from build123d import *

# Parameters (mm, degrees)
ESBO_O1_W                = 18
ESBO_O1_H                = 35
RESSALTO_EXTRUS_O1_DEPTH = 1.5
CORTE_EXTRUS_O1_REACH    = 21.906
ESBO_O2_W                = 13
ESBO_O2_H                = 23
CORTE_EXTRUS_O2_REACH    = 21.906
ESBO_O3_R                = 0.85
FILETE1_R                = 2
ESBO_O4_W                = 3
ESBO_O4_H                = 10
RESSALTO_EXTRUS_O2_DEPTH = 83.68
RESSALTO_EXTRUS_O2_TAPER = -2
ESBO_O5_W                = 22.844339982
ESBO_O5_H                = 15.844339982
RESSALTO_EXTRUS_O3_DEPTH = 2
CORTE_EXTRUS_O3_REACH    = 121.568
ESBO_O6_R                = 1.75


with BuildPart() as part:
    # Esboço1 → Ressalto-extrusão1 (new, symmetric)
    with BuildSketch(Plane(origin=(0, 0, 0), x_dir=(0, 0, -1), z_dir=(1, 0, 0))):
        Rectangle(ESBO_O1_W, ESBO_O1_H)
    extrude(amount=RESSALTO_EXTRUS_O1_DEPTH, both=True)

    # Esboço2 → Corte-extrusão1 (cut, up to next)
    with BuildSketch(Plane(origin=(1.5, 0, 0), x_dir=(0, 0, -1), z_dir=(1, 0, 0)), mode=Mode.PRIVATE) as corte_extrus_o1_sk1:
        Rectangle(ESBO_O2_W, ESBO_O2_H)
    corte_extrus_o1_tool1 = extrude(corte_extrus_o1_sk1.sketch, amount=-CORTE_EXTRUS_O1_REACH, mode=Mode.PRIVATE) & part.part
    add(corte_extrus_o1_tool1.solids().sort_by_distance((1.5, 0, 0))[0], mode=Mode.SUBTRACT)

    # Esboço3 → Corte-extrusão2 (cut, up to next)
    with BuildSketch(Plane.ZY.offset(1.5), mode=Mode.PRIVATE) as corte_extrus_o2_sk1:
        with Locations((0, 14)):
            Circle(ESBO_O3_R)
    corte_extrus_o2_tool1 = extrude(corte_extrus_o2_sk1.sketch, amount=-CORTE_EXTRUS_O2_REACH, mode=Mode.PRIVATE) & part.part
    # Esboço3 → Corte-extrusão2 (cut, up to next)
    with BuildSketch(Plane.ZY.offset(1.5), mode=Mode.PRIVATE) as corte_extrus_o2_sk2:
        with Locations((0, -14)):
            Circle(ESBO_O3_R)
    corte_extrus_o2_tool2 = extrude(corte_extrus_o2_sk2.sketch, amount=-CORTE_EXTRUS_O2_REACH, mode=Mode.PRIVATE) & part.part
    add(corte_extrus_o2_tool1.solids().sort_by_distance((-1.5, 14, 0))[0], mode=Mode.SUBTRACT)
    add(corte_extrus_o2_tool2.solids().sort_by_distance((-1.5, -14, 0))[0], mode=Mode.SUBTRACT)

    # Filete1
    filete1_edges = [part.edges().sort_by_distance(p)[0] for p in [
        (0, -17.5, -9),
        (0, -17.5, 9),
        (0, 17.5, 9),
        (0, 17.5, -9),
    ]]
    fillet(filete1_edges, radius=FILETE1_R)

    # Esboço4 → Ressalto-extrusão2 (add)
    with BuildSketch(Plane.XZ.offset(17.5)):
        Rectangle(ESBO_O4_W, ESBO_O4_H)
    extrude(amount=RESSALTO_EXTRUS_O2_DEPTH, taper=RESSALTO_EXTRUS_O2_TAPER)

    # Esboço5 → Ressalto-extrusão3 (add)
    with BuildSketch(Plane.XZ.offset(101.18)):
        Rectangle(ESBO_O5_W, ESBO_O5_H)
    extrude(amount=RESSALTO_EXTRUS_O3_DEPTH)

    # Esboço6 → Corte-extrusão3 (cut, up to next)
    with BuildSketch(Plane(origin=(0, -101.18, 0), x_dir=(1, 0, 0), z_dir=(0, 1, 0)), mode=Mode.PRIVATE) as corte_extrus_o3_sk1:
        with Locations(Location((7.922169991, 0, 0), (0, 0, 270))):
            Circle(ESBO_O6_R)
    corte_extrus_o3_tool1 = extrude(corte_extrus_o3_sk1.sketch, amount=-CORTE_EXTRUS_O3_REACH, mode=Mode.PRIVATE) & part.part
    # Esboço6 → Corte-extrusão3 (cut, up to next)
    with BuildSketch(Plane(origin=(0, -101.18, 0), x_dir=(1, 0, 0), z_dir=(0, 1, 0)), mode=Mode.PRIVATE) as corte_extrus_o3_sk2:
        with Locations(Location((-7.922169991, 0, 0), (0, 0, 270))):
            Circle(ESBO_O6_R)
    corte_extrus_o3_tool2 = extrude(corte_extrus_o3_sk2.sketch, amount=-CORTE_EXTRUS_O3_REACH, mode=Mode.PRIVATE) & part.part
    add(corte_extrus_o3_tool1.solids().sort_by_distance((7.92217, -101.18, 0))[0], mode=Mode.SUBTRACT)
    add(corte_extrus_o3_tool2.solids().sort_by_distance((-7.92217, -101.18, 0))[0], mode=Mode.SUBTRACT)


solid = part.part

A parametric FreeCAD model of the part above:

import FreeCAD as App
import Part
import Sketcher
from FreeCAD import Vector


def edges_at(feature, points):
    """Names of the edges that pass closest to the given points."""
    edges = feature.Shape.Edges
    near = lambda p: min(range(len(edges)), key=lambda i: edges[i].distToShape(Part.Vertex(*p))[0])
    return sorted({f"Edge{near(p) + 1}" for p in points})


def add_polygon(sketch, points):
    """Adds a closed chain of lines whose ends are joined by coincident constraints."""
    first, n = sketch.GeometryCount, len(points)
    for a, b in zip(points, points[1:] + points[:1]):
        sketch.addGeometry(Part.LineSegment(App.Vector(*a, 0), App.Vector(*b, 0)), False)
    for i in range(n):
        sketch.addConstraint(Sketcher.Constraint("Coincident", first + i, 2, first + (i + 1) % n, 1))

doc = App.newDocument("Part")
body = doc.addObject("PartDesign::Body", "Body")

# Sketch on YZ plane
sketch1 = body.newObject("Sketcher::SketchObject", "Sketch")
sketch1.AttachmentSupport = (doc.getObject("YZ_Plane"), [""])
sketch1.MapMode = "FlatFace"
add_polygon(sketch1, [(17.5, 9), (-17.5, 9), (-17.5, -9), (17.5, -9)])  # lines 0-3
sketch1.addConstraint([
    Sketcher.Constraint("Horizontal", 0),
    Sketcher.Constraint("Vertical", 1),
    Sketcher.Constraint("Horizontal", 2),
    Sketcher.Constraint("Vertical", 3),
    Sketcher.Constraint("Symmetric", 0, 2, 2, 2, -1, 1),
    Sketcher.Constraint("DistanceX", 0, 2, 0, 1, 35.0),
    Sketcher.Constraint("DistanceY", 1, 2, 1, 1, 18.0),
])
pad1 = body.newObject("PartDesign::Pad", "Pad")
pad1.Profile = sketch1
pad1.Length = 3
pad1.Midplane = True

# Sketch on YZ plane
sketch2 = body.newObject("Sketcher::SketchObject", "Sketch001")
sketch2.AttachmentSupport = (doc.getObject("YZ_Plane"), [""])
sketch2.MapMode = "FlatFace"
sketch2.AttachmentOffset = App.Placement(Vector(0, 0, 1.5), App.Rotation())
add_polygon(sketch2, [(11.5, 6.5), (-11.5, 6.5), (-11.5, -6.5), (11.5, -6.5)])  # lines 0-3
sketch2.addConstraint([
    Sketcher.Constraint("Horizontal", 0),
    Sketcher.Constraint("Vertical", 1),
    Sketcher.Constraint("Horizontal", 2),
    Sketcher.Constraint("Vertical", 3),
    Sketcher.Constraint("Symmetric", 0, 2, 2, 2, -1, 1),
    Sketcher.Constraint("DistanceX", 0, 2, 0, 1, 23.0),
    Sketcher.Constraint("DistanceY", 1, 2, 1, 1, 13.0),
])
pocket1 = body.newObject("PartDesign::Pocket", "Pocket")
pocket1.Profile = sketch2
pocket1.Type = "UpToFirst"

# Sketch on YZ plane
sketch3 = body.newObject("Sketcher::SketchObject", "Sketch002")
sketch3.AttachmentSupport = (doc.getObject("YZ_Plane"), [""])
sketch3.MapMode = "FlatFace"
sketch3.AttachmentOffset = App.Placement(Vector(0, 0, -1.5), App.Rotation())
sketch3.addGeometry(Part.Circle(Vector(14, 0, 0), Vector(0, 0, 1), 0.85), False)
sketch3.addConstraint([
    Sketcher.Constraint("PointOnObject", 0, 3, -1),
    Sketcher.Constraint("Diameter", 0, 1.7),
    Sketcher.Constraint("DistanceX", -1, 1, 0, 3, 14.0),
])
pocket2 = body.newObject("PartDesign::Pocket", "Pocket001")
pocket2.Profile = sketch3
pocket2.Type = "UpToFirst"
pocket2.Reversed = True

# Sketch on YZ plane
sketch4 = body.newObject("Sketcher::SketchObject", "Sketch003")
sketch4.AttachmentSupport = (doc.getObject("YZ_Plane"), [""])
sketch4.MapMode = "FlatFace"
sketch4.AttachmentOffset = App.Placement(Vector(0, 0, -1.5), App.Rotation())
sketch4.addGeometry(Part.Circle(Vector(-14, 0, 0), Vector(0, 0, 1), 0.85), False)
sketch4.addConstraint([
    Sketcher.Constraint("PointOnObject", 0, 3, -1),
    Sketcher.Constraint("Diameter", 0, 1.7),
    Sketcher.Constraint("DistanceX", 0, 3, -1, 1, 14.0),
])
pocket3 = body.newObject("PartDesign::Pocket", "Pocket002")
pocket3.Profile = sketch4
pocket3.Type = "UpToFirst"
pocket3.Reversed = True
doc.recompute()

fillet = body.newObject("PartDesign::Fillet", "Fillet")
fillet.Base = (pocket3, edges_at(pocket3, [
    (0, -17.5, -9),
    (0, -17.5, 9),
    (0, 17.5, 9),
    (0, 17.5, -9),
]))
fillet.Radius = 2

# Sketch on XZ plane
sketch5 = body.newObject("Sketcher::SketchObject", "Sketch004")
sketch5.AttachmentSupport = (doc.getObject("XZ_Plane"), [""])
sketch5.MapMode = "FlatFace"
sketch5.AttachmentOffset = App.Placement(Vector(0, 0, 17.5), App.Rotation())
add_polygon(sketch5, [(-1.5, 5), (-1.5, -5), (1.5, -5), (1.5, 5)])  # lines 0-3
sketch5.addConstraint([
    Sketcher.Constraint("Vertical", 0),
    Sketcher.Constraint("Horizontal", 1),
    Sketcher.Constraint("Vertical", 2),
    Sketcher.Constraint("Horizontal", 3),
    Sketcher.Constraint("Symmetric", 0, 2, 2, 2, -1, 1),
    Sketcher.Constraint("DistanceX", 1, 1, 1, 2, 3.0),
    Sketcher.Constraint("DistanceY", 0, 2, 0, 1, 10.0),
])
pad2 = body.newObject("PartDesign::Pad", "Pad001")
pad2.Profile = sketch5
pad2.Length = 83.68
pad2.TaperAngle = 2

# Sketch on XZ plane
sketch6 = body.newObject("Sketcher::SketchObject", "Sketch005")
sketch6.AttachmentSupport = (doc.getObject("XZ_Plane"), [""])
sketch6.MapMode = "FlatFace"
sketch6.AttachmentOffset = App.Placement(Vector(0, 0, 101.18), App.Rotation())
add_polygon(sketch6, [(-11.42217, 7.92217), (-11.42217, -7.92217), (11.42217, -7.92217), (11.42217, 7.92217)])  # lines 0-3
sketch6.addConstraint([
    Sketcher.Constraint("Vertical", 0),
    Sketcher.Constraint("Horizontal", 1),
    Sketcher.Constraint("Vertical", 2),
    Sketcher.Constraint("Horizontal", 3),
    Sketcher.Constraint("Symmetric", 0, 2, 2, 2, -1, 1),
    Sketcher.Constraint("DistanceX", 1, 1, 1, 2, 22.84434),
    Sketcher.Constraint("DistanceY", 0, 2, 0, 1, 15.84434),
])
pad3 = body.newObject("PartDesign::Pad", "Pad002")
pad3.Profile = sketch6
pad3.Length = 2

# Sketch on XZ plane
sketch7 = body.newObject("Sketcher::SketchObject", "Sketch006")
sketch7.AttachmentSupport = (doc.getObject("XZ_Plane"), [""])
sketch7.MapMode = "FlatFace"
sketch7.AttachmentOffset = App.Placement(Vector(0, 0, 101.18), App.Rotation())
sketch7.addGeometry(Part.Circle(Vector(7.92217, 0, 0), Vector(0, 0, 1), 1.75), False)
sketch7.addConstraint([
    Sketcher.Constraint("PointOnObject", 0, 3, -1),
    Sketcher.Constraint("Diameter", 0, 3.5),
    Sketcher.Constraint("DistanceX", -1, 1, 0, 3, 7.92217),
])
pocket4 = body.newObject("PartDesign::Pocket", "Pocket003")
pocket4.Profile = sketch7
pocket4.Type = "UpToFirst"
pocket4.Reversed = True

# Sketch on XZ plane
sketch8 = body.newObject("Sketcher::SketchObject", "Sketch007")
sketch8.AttachmentSupport = (doc.getObject("XZ_Plane"), [""])
sketch8.MapMode = "FlatFace"
sketch8.AttachmentOffset = App.Placement(Vector(0, 0, 101.18), App.Rotation())
sketch8.addGeometry(Part.Circle(Vector(-7.92217, 0, 0), Vector(0, 0, 1), 1.75), False)
sketch8.addConstraint([
    Sketcher.Constraint("PointOnObject", 0, 3, -1),
    Sketcher.Constraint("Diameter", 0, 3.5),
    Sketcher.Constraint("DistanceX", 0, 3, -1, 1, 7.92217),
])
pocket5 = body.newObject("PartDesign::Pocket", "Pocket004")
pocket5.Profile = sketch8
pocket5.Type = "UpToFirst"
pocket5.Reversed = True

doc.recompute()
